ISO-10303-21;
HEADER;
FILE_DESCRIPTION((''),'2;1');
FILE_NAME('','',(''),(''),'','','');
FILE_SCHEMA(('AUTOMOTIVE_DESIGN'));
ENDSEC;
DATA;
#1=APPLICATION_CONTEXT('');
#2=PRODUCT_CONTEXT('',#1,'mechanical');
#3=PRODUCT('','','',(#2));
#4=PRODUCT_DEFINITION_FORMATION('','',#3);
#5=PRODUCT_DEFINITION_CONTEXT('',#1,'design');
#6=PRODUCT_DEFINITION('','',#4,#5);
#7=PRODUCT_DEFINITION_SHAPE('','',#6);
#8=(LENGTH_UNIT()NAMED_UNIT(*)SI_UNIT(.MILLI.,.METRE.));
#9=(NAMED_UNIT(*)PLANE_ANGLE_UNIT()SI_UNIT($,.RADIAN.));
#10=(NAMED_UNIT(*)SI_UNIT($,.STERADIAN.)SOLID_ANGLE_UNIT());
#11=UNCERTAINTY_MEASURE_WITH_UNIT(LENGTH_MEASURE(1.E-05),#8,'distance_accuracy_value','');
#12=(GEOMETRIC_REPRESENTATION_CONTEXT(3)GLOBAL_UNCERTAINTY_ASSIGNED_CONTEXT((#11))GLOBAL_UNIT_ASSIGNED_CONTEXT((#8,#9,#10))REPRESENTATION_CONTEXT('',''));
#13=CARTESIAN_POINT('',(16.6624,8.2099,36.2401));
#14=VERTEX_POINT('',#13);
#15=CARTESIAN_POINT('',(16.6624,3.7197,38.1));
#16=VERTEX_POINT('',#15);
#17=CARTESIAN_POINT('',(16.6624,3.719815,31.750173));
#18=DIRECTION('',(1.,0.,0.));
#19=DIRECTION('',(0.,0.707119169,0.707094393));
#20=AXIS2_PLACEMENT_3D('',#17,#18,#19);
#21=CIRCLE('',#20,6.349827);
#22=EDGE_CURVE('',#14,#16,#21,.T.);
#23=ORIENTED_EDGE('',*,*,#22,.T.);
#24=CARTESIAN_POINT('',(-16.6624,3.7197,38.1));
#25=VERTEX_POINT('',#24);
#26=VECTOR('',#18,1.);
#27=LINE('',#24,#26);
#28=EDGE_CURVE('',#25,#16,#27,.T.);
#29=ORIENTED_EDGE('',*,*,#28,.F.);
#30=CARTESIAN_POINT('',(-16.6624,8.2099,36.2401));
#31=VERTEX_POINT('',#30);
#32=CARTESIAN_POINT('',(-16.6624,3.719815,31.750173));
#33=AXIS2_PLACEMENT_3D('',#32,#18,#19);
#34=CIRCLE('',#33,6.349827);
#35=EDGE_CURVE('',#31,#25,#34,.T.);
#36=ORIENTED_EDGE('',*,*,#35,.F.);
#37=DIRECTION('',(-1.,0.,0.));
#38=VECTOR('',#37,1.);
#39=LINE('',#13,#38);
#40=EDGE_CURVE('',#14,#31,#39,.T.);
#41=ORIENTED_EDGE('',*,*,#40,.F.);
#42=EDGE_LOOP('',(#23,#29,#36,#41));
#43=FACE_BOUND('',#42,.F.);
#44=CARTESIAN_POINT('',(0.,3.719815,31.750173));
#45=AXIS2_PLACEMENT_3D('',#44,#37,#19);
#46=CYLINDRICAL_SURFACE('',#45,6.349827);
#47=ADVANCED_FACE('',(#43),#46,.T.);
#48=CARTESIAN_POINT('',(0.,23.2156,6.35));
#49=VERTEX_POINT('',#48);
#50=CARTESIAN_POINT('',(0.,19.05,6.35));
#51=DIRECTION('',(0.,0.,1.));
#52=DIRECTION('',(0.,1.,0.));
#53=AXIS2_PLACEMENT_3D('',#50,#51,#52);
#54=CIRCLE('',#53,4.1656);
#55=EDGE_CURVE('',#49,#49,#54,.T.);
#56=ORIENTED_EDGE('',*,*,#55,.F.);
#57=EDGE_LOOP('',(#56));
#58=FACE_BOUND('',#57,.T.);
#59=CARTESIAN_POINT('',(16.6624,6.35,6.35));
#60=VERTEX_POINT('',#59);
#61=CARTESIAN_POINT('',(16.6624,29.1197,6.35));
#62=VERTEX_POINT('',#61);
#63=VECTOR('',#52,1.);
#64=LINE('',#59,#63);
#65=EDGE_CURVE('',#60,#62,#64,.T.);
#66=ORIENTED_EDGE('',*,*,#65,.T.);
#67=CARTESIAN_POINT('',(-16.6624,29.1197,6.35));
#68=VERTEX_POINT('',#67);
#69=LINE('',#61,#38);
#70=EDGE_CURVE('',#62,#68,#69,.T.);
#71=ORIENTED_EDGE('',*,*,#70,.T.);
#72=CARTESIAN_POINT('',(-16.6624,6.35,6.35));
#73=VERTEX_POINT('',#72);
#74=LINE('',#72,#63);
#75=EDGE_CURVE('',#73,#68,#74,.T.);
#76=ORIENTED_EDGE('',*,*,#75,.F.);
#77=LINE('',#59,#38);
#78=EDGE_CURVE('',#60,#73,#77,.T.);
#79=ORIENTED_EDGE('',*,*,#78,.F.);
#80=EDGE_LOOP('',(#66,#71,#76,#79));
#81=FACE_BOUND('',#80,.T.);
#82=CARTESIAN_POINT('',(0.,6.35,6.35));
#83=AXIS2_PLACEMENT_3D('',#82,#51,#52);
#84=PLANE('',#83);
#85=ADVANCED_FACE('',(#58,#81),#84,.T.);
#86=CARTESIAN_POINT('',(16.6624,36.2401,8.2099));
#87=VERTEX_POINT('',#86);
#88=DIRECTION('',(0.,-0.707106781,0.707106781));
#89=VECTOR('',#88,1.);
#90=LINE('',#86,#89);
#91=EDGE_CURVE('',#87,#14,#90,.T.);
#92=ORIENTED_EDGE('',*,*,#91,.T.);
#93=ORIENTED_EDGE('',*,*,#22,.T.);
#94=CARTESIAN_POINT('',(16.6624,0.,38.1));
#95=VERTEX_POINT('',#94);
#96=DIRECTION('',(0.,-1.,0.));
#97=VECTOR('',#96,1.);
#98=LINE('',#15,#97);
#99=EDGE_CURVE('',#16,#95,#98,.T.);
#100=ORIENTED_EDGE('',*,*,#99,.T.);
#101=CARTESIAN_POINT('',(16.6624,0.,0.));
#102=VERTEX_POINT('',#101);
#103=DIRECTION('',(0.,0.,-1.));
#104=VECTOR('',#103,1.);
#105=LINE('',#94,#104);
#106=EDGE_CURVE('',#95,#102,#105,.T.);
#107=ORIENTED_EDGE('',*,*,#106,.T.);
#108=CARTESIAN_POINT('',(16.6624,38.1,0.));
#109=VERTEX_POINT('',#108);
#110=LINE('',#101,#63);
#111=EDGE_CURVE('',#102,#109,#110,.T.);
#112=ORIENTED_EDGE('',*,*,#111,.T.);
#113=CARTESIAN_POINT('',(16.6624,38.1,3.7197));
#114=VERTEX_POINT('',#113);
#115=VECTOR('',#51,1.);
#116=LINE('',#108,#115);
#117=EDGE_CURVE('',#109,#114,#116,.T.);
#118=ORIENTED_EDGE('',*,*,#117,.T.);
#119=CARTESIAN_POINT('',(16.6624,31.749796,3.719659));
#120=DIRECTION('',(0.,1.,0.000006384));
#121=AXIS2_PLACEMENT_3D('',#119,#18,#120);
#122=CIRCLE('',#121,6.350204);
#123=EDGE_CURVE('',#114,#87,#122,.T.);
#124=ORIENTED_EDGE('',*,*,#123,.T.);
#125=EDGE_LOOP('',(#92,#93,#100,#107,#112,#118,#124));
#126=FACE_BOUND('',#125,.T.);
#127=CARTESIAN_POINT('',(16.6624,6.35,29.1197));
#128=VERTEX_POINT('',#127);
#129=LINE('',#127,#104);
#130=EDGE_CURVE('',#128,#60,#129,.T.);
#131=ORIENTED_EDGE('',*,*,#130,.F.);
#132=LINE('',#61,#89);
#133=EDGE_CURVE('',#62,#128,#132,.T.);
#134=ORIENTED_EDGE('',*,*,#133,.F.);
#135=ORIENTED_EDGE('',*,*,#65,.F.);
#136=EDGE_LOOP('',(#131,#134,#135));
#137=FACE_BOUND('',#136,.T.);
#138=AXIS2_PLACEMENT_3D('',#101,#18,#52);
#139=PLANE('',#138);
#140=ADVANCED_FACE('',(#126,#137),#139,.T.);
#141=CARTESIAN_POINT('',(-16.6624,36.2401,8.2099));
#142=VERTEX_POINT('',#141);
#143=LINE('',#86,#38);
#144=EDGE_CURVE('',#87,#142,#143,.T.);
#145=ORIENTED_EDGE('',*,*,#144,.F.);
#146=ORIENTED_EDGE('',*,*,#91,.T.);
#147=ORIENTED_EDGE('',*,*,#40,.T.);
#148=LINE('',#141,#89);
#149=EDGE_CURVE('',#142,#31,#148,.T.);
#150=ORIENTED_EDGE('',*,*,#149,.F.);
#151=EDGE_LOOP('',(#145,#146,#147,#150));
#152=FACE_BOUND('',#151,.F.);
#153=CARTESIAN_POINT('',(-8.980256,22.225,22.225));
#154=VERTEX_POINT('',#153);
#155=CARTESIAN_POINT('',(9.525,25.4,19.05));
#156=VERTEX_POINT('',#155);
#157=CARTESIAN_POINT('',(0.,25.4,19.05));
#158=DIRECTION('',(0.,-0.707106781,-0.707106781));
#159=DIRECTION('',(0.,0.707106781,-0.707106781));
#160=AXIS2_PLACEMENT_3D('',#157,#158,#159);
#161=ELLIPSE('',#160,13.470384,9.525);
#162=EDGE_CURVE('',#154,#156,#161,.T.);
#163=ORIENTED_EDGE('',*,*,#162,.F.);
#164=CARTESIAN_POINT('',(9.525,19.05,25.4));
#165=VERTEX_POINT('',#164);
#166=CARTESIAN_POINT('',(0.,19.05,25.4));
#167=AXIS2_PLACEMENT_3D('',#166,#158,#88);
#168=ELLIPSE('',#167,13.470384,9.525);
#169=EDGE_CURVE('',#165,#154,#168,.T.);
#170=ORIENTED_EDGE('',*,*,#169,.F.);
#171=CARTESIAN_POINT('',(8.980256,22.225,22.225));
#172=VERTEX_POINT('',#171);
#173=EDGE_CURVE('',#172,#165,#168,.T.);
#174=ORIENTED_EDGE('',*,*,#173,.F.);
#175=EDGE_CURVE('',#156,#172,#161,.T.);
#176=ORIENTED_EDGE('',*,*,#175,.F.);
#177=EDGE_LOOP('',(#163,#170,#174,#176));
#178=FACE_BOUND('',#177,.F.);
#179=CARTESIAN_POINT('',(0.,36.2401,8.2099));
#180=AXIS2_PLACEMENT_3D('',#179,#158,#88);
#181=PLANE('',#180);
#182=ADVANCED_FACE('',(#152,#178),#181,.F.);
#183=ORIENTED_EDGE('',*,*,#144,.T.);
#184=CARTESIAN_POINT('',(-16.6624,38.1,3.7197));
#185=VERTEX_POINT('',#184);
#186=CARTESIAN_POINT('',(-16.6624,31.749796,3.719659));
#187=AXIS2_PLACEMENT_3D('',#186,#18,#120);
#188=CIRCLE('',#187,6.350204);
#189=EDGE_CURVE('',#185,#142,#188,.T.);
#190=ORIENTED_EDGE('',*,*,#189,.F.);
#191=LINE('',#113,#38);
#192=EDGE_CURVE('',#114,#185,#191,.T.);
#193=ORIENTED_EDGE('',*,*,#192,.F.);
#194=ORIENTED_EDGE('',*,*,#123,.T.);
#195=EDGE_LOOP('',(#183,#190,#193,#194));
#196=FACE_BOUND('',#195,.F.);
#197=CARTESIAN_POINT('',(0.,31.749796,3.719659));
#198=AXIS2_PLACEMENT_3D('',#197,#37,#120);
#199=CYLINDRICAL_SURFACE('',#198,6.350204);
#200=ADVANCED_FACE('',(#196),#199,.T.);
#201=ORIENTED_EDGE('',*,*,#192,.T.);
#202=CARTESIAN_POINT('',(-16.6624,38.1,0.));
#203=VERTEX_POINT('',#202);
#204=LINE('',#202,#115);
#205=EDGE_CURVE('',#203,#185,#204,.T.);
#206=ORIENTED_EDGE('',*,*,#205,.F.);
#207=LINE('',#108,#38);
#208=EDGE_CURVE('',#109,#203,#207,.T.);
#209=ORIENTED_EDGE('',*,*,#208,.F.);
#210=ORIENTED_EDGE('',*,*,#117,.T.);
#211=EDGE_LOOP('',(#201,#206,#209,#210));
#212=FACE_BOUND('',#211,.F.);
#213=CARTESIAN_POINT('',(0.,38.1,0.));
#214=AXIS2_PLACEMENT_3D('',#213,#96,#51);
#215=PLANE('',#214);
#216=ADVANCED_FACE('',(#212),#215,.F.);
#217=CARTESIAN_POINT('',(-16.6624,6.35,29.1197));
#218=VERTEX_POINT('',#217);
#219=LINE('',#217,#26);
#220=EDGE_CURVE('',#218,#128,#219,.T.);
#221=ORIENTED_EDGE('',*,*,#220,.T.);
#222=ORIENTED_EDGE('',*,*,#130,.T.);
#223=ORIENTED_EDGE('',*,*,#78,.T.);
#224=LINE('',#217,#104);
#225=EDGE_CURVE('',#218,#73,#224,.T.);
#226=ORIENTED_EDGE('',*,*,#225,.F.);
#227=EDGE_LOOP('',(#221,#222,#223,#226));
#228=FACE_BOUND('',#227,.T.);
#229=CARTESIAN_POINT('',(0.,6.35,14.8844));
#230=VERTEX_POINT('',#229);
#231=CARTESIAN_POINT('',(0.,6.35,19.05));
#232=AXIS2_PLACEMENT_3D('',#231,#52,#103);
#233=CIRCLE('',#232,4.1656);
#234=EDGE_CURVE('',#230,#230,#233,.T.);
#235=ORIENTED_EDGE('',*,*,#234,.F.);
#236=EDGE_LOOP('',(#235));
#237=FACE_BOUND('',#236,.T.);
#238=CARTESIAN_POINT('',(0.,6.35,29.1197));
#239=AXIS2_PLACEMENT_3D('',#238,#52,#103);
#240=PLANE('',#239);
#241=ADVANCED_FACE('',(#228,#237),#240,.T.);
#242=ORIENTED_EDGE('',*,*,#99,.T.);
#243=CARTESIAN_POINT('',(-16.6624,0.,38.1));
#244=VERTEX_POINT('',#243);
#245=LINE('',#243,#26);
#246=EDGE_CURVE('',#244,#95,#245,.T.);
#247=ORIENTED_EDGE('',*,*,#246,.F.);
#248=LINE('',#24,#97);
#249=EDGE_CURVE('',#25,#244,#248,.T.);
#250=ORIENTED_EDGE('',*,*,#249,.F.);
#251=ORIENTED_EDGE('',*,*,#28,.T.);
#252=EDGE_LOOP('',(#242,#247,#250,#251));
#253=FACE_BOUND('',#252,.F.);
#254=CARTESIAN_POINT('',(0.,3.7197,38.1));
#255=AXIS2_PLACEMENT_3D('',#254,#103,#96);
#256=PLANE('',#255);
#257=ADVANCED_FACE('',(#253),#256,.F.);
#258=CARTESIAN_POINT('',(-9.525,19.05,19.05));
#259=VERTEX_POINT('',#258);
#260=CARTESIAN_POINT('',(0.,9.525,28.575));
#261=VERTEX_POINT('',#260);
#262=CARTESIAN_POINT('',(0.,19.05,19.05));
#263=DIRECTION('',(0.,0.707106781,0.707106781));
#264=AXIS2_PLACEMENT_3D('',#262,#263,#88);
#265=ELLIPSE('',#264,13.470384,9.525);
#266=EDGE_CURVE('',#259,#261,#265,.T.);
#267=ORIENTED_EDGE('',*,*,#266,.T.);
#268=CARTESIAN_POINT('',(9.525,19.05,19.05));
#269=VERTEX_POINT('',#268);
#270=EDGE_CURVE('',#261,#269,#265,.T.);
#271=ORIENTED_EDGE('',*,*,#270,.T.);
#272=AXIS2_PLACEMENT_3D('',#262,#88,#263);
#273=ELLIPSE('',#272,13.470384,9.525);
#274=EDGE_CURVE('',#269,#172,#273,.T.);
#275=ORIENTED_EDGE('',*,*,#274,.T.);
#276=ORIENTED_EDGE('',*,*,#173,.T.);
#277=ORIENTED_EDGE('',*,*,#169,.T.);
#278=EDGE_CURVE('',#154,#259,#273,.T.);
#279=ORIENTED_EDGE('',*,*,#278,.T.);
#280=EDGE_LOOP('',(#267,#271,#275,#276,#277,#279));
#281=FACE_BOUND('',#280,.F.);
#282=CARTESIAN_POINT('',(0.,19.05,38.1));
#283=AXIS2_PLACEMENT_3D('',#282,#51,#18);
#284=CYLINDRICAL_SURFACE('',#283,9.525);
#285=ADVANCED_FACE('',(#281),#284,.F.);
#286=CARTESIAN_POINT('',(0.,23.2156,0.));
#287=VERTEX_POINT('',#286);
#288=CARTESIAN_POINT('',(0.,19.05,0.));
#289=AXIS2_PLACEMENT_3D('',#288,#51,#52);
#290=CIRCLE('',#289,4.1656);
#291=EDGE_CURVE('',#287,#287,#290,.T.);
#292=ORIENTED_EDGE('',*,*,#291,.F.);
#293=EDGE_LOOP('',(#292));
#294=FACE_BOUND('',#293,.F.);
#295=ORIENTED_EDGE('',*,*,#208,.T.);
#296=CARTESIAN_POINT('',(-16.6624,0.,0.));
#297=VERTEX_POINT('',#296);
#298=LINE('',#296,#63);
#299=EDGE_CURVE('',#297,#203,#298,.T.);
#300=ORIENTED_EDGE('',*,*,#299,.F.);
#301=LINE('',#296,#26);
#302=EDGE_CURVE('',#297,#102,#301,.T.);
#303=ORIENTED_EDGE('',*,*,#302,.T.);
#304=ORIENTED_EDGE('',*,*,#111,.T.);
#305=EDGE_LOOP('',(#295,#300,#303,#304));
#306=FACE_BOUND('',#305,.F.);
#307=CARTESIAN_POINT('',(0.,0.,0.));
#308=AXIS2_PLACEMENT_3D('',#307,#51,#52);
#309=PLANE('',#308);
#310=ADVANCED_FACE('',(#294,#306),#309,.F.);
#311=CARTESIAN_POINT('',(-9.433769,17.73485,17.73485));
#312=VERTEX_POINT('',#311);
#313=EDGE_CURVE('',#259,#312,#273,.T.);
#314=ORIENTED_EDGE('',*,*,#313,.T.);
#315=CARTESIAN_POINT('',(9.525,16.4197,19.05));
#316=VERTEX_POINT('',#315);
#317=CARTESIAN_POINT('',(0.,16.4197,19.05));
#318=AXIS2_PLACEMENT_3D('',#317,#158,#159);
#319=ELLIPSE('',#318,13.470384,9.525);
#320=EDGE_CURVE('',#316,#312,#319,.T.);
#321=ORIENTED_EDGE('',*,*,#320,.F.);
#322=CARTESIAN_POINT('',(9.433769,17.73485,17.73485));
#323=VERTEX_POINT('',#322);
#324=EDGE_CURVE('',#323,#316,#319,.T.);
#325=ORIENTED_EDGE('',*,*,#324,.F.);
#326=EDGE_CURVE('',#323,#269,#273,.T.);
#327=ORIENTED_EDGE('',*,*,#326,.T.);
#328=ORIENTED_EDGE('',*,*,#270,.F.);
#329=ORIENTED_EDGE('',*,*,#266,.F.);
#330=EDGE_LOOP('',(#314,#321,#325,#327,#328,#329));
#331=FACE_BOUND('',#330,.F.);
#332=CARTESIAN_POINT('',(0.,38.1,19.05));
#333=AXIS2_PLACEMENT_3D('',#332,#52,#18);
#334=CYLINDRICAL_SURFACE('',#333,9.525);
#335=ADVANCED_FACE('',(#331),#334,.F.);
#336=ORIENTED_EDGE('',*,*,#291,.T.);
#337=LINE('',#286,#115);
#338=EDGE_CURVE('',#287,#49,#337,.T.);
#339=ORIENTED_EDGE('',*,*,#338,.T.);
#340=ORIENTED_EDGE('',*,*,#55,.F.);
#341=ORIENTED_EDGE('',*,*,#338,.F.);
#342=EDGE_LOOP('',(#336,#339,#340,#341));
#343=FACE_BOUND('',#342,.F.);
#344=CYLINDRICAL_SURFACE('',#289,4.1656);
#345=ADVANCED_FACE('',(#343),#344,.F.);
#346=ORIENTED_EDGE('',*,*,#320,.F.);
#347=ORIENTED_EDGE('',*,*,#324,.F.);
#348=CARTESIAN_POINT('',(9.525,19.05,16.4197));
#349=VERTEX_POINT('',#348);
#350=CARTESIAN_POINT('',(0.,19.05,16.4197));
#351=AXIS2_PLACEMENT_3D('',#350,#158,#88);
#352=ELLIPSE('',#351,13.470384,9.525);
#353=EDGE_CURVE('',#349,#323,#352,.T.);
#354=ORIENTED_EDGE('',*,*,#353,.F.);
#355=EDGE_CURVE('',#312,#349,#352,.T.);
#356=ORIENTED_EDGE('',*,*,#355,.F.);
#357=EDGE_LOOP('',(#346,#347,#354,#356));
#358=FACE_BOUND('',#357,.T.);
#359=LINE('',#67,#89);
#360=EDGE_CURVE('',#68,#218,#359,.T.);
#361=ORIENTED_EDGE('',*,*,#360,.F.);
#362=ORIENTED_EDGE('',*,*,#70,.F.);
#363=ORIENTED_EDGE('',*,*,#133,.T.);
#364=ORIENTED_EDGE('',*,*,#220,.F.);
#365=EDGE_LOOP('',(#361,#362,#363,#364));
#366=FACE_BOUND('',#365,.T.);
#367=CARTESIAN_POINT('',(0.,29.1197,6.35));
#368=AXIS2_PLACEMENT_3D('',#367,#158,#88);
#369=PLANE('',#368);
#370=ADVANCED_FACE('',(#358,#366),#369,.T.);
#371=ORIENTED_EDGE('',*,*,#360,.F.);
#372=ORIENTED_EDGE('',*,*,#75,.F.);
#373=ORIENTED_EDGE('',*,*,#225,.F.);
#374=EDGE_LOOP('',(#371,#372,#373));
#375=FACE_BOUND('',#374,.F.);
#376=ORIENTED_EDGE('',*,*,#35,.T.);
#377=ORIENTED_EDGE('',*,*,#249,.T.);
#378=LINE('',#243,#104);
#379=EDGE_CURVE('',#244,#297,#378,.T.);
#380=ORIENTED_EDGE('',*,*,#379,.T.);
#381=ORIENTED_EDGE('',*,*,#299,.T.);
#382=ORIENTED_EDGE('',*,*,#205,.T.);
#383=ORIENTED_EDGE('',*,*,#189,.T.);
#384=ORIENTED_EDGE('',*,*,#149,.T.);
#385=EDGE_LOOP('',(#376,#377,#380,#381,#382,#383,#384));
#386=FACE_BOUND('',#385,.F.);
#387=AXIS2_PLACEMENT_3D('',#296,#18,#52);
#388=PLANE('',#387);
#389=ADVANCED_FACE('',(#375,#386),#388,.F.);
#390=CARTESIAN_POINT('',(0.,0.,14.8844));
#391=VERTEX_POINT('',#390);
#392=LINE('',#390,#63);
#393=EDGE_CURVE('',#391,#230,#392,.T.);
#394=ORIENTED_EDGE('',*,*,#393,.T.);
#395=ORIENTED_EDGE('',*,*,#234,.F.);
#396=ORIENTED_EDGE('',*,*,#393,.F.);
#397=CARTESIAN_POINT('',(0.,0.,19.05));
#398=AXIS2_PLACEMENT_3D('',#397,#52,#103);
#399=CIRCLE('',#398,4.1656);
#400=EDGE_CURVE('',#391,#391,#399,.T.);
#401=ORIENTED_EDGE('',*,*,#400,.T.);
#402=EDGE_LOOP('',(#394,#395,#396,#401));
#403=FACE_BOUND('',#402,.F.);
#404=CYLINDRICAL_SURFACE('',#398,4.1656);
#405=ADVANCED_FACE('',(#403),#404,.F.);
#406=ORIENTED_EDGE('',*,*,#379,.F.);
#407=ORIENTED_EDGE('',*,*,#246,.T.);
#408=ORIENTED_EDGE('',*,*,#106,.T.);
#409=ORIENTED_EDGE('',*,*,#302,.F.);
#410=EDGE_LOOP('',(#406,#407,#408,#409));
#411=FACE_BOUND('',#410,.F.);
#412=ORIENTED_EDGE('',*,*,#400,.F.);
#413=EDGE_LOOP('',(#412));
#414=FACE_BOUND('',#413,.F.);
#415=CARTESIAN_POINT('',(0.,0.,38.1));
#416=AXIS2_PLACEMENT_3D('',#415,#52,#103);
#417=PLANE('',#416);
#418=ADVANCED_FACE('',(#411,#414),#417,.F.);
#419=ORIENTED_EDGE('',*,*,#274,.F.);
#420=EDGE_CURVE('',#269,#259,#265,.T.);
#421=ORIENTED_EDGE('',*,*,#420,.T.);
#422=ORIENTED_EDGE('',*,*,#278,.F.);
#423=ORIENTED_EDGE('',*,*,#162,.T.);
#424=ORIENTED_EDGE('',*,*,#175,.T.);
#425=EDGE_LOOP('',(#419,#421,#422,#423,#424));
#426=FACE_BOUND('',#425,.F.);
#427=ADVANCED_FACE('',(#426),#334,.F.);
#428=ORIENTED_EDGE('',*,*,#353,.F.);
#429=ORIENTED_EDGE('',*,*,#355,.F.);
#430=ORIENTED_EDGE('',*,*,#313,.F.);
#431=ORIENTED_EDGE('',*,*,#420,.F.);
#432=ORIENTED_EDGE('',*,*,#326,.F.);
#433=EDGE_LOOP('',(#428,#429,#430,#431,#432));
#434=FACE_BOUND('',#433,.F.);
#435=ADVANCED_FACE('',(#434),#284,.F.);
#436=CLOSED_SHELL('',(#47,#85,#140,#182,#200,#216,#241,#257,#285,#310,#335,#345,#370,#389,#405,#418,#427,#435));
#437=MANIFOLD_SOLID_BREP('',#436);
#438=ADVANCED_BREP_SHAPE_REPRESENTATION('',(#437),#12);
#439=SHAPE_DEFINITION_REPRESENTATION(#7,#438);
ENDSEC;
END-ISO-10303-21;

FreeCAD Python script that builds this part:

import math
import FreeCAD as App
import Part
import Sketcher
Q = App.Units.Quantity

doc = App.newDocument("Part")
body = doc.addObject("PartDesign::Body", "Body")

sketch1 = doc.addObject("Sketcher::SketchObject", "Sketch")
body.addObject(sketch1)
sketch1.AttachmentSupport = (doc.YZ_Plane, [""])
sketch1.MapMode = "FlatFace"
sketch1.addGeometry([
    Part.ArcOfCircle(Part.Circle(App.Vector(3.7, 31.8, 0), App.Vector(0, 0, 1), 6.4), math.radians(45), math.radians(90)),
    Part.LineSegment(App.Vector(3.7, 38.1, 0), App.Vector(0, 38.1, 0)),
    Part.LineSegment(App.Vector(0, 38.1, 0), App.Vector(0, 0, 0)),
    Part.LineSegment(App.Vector(0, 0, 0), App.Vector(38.1, 0, 0)),
    Part.LineSegment(App.Vector(38.1, 0, 0), App.Vector(38.1, 3.7, 0)),
    Part.ArcOfCircle(Part.Circle(App.Vector(31.8, 3.7, 0), App.Vector(0, 0, 1), 6.4), math.radians(0), math.radians(45)),
    Part.LineSegment(App.Vector(36.2, 8.2, 0), App.Vector(8.2, 36.2, 0)),
    Part.LineSegment(App.Vector(6.3, 6.3, 0), App.Vector(6.3, 29.1, 0)),
    Part.LineSegment(App.Vector(6.3, 29.1, 0), App.Vector(29.1, 6.3, 0)),
    Part.LineSegment(App.Vector(29.1, 6.3, 0), App.Vector(6.3, 6.3, 0)),
], False)
sketch1.addConstraint([
    Sketcher.Constraint("Tangent", 0, 2, 1, 1),
    Sketcher.Constraint("Coincident", 1, 2, 2, 1),
    Sketcher.Constraint("Coincident", 2, 2, 3, 1),
    Sketcher.Constraint("Coincident", 3, 2, 4, 1),
    Sketcher.Constraint("Tangent", 4, 2, 5, 1),
    Sketcher.Constraint("Tangent", 5, 2, 6, 1),
    Sketcher.Constraint("Tangent", 6, 2, 0, 1),
    Sketcher.Constraint("Coincident", 7, 2, 8, 1),
    Sketcher.Constraint("Coincident", 8, 2, 9, 1),
    Sketcher.Constraint("Coincident", 9, 2, 7, 1),
    Sketcher.Constraint("Horizontal", 1),
    Sketcher.Constraint("Vertical", 2),
    Sketcher.Constraint("Horizontal", 3),
    Sketcher.Constraint("Vertical", 4),
    Sketcher.Constraint("Vertical", 7),
    Sketcher.Constraint("Horizontal", 9),
    Sketcher.Constraint("Coincident", 2, 2, -1, 1),
    Sketcher.Constraint("Equal", 0, 5),
    Sketcher.Constraint("Parallel", 6, 8),
    Sketcher.Constraint("Equal", 3, 2),
    Sketcher.Constraint("Equal", 1, 4),
    Sketcher.Constraint("Radius", 0, Q("0.25 in")),
    Sketcher.Constraint("DistanceX", 3, 1, 3, 2, Q("1.5 in")),
    Sketcher.Constraint("DistanceY", 9, 2, 0, 3, Q("1 in")),
    Sketcher.Constraint("DistanceX", 9, 2, 5, 3, Q("1 in")),
    Sketcher.Constraint("DistanceX", 1, 2, 1, 1, 3.7197),
    Sketcher.Constraint("DistanceX", 9, 2, 9, 1, 22.7697),
])
pad1 = doc.addObject("PartDesign::Pad", "Pad")
body.addObject(pad1)
pad1.Profile = sketch1
pad1.Length = Q("1.312 in")
pad1.Midplane = True

sketch2 = doc.addObject("Sketcher::SketchObject", "Sketch001")
body.addObject(sketch2)
sketch2.AttachmentSupport = (doc.XZ_Plane, [""])
sketch2.MapMode = "FlatFace"
sketch2.addGeometry(Part.Circle(App.Vector(0, 19.1, 0), App.Vector(0, 0, 1), 4.2), False)
sketch2.addConstraint([
    Sketcher.Constraint("PointOnObject", 0, 3, -2),
    Sketcher.Constraint("Diameter", 0, Q("0.328 in")),
    Sketcher.Constraint("DistanceY", -1, 1, 0, 3, Q("0.75 in")),
])
doc.recompute()
hole = doc.addObject("PartDesign::Hole", "Hole")
body.addObject(hole)
hole.Profile = sketch2
hole.ThreadType = "None"
hole.Diameter = Q("0.328 in")
hole.DepthType = "Dimension"
hole.Depth = Q("0.25 in")
hole.DrillPoint = "Flat"

sketch3 = doc.addObject("Sketcher::SketchObject", "Sketch002")
body.addObject(sketch3)
sketch3.AttachmentSupport = (doc.XY_Plane, [""])
sketch3.MapMode = "FlatFace"
sketch3.addGeometry(Part.Circle(App.Vector(0, 19.1, 0), App.Vector(0, 0, 1), 4.2), False)
sketch3.addConstraint([
    Sketcher.Constraint("PointOnObject", 0, 3, -2),
    Sketcher.Constraint("Diameter", 0, Q("0.328 in")),
    Sketcher.Constraint("DistanceY", -1, 1, 0, 3, Q("0.75 in")),
])
doc.recompute()
hole2 = doc.addObject("PartDesign::Hole", "Hole001")
body.addObject(hole2)
hole2.Profile = sketch3
hole2.ThreadType = "None"
hole2.Diameter = Q("0.328 in")
hole2.DepthType = "Dimension"
hole2.Depth = Q("0.25 in")
hole2.DrillPoint = "Flat"
hole2.Reversed = True

sketch4 = doc.addObject("Sketcher::SketchObject", "Sketch003")
body.addObject(sketch4)
sketch4.AttachmentSupport = (doc.XY_Plane, [""])
sketch4.MapMode = "FlatFace"
sketch4.AttachmentOffset = App.Placement(App.Vector(0, 0, 1.5 * 25.4), App.Rotation())
sketch4.addGeometry(Part.Circle(App.Vector(0, 19, 0), App.Vector(0, 0, 1), 10), False)
sketch4.addConstraint([
    Sketcher.Constraint("PointOnObject", 0, 3, -2),
    Sketcher.Constraint("Diameter", 0, Q("0.75 in")),
    Sketcher.Constraint("DistanceY", -1, 1, 0, 3, Q("0.75 in")),
])
pocket1 = doc.addObject("PartDesign::Pocket", "Pocket")
body.addObject(pocket1)
pocket1.Profile = sketch4
pocket1.Length = Q("1.25 in")

sketch5 = doc.addObject("Sketcher::SketchObject", "Sketch004")
body.addObject(sketch5)
sketch5.AttachmentSupport = (doc.XZ_Plane, [""])
sketch5.MapMode = "FlatFace"
sketch5.AttachmentOffset = App.Placement(App.Vector(0, 0, -1.5 * 25.4), App.Rotation())
sketch5.addGeometry(Part.Circle(App.Vector(0, 19, 0), App.Vector(0, 0, 1), 10), False)
sketch5.addConstraint([
    Sketcher.Constraint("PointOnObject", 0, 3, -2),
    Sketcher.Constraint("Diameter", 0, Q("0.75 in")),
    Sketcher.Constraint("DistanceY", -1, 1, 0, 3, Q("0.75 in")),
])
pocket2 = doc.addObject("PartDesign::Pocket", "Pocket001")
body.addObject(pocket2)
pocket2.Profile = sketch5
pocket2.Length = Q("1.25 in")
pocket2.Reversed = True

doc.recompute()
